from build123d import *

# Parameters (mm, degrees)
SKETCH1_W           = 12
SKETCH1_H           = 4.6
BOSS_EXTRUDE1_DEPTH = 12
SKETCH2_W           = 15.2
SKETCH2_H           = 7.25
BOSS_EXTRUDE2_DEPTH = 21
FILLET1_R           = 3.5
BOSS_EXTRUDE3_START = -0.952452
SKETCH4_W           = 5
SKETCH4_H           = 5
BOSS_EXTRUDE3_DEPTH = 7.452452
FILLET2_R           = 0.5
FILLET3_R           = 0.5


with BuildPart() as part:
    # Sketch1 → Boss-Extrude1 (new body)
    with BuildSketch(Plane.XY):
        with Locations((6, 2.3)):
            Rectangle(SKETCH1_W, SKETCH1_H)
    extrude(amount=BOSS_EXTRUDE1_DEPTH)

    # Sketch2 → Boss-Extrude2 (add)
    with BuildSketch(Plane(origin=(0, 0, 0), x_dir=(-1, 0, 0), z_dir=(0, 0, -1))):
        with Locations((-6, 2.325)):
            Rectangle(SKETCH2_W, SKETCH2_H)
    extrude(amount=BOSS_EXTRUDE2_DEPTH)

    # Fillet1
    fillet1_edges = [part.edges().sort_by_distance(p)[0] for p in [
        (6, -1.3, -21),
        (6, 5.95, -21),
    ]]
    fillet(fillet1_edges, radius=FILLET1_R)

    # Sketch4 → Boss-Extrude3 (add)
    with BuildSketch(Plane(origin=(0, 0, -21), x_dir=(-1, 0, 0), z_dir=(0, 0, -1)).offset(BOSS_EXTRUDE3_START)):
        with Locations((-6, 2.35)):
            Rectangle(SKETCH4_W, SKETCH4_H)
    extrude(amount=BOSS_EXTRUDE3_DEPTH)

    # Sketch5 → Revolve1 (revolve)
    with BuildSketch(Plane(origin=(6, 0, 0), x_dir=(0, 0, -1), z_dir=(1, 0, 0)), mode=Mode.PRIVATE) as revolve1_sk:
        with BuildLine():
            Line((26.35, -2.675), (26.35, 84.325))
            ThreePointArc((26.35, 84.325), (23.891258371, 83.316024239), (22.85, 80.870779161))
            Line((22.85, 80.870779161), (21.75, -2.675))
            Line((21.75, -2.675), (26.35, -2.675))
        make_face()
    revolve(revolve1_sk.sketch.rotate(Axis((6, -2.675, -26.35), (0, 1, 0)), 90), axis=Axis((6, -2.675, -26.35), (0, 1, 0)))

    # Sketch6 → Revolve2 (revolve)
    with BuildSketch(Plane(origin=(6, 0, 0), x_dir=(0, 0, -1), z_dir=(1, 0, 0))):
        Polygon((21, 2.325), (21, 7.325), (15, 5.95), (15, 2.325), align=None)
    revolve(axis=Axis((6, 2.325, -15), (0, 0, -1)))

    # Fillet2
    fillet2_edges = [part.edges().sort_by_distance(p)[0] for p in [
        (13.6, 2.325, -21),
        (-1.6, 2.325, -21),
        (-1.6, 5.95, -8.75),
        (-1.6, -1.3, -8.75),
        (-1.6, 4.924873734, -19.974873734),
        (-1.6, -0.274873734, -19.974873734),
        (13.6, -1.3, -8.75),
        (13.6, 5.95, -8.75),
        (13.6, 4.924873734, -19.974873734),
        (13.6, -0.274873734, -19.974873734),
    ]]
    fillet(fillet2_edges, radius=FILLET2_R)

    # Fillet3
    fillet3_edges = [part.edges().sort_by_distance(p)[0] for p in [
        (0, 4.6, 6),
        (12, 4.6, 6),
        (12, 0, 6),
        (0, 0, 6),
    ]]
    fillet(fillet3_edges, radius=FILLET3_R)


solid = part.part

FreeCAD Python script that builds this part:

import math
import FreeCAD as App
import Part
import Sketcher


def edges_at(feature, points):
    """Names of the edges that pass closest to the given points."""
    edges = feature.Shape.Edges
    near = lambda p: min(range(len(edges)), key=lambda i: edges[i].distToShape(Part.Vertex(*p))[0])
    return sorted({f"Edge{near(p) + 1}" for p in points})


def add_polygon(sketch, points):
    """Adds a closed chain of lines whose ends are joined by coincident constraints."""
    first, n = sketch.GeometryCount, len(points)
    for a, b in zip(points, points[1:] + points[:1]):
        sketch.addGeometry(Part.LineSegment(App.Vector(*a, 0), App.Vector(*b, 0)), False)
    for i in range(n):
        sketch.addConstraint(Sketcher.Constraint("Coincident", first + i, 2, first + (i + 1) % n, 1))

doc = App.newDocument("Part")
body = doc.addObject("PartDesign::Body", "Body")

# Sketch on XY plane
sketch1 = doc.addObject("Sketcher::SketchObject", "Sketch")
body.addObject(sketch1)
sketch1.AttachmentSupport = (doc.XY_Plane, [""])
sketch1.MapMode = "FlatFace"
add_polygon(sketch1, [(0, 4.6), (0, 0), (12, 0), (12, 4.6)])  # lines 0-3
sketch1.addConstraint(Sketcher.Constraint("Vertical", 0))
sketch1.addConstraint(Sketcher.Constraint("Horizontal", 1))
sketch1.addConstraint(Sketcher.Constraint("Vertical", 2))
sketch1.addConstraint(Sketcher.Constraint("Horizontal", 3))
sketch1.addConstraint(Sketcher.Constraint("Coincident", 0, 2, -1, 1))
sketch1.addConstraint(Sketcher.Constraint("DistanceX", 1, 1, 1, 2, 12.0))
sketch1.addConstraint(Sketcher.Constraint("DistanceY", 0, 2, 0, 1, 4.6))
pad1 = doc.addObject("PartDesign::Pad", "Pad")
body.addObject(pad1)
pad1.Profile = sketch1
pad1.Length = 12

# Sketch on XY plane
sketch2 = doc.addObject("Sketcher::SketchObject", "Sketch001")
body.addObject(sketch2)
sketch2.AttachmentSupport = (doc.XY_Plane, [""])
sketch2.MapMode = "FlatFace"
add_polygon(sketch2, [(14, 6), (14, -1), (-2, -1), (-2, 6)])  # lines 0-3
sketch2.addConstraint(Sketcher.Constraint("Vertical", 0))
sketch2.addConstraint(Sketcher.Constraint("Horizontal", 1))
sketch2.addConstraint(Sketcher.Constraint("Vertical", 2))
sketch2.addConstraint(Sketcher.Constraint("Horizontal", 3))
sketch2.addConstraint(Sketcher.Constraint("DistanceX", 1, 2, 1, 1, 15.2))
sketch2.addConstraint(Sketcher.Constraint("DistanceY", 0, 2, 0, 1, 7.25))
sketch2.addConstraint(Sketcher.Constraint("DistanceX", -1, 1, 0, 2, 13.6))
sketch2.addConstraint(Sketcher.Constraint("DistanceY", 0, 2, -1, 1, 1.3))
pad2 = doc.addObject("PartDesign::Pad", "Pad001")
body.addObject(pad2)
pad2.Profile = sketch2
pad2.Length = 21
pad2.Reversed = True
doc.recompute()

fillet = doc.addObject("PartDesign::Fillet", "Fillet")
body.addObject(fillet)
fillet.Base = (pad2, edges_at(pad2, [(6, -1.3, -21), (6, 5.95, -21)]))
fillet.Radius = 3.5

# Sketch on XY plane
sketch3 = doc.addObject("Sketcher::SketchObject", "Sketch002")
body.addObject(sketch3)
sketch3.AttachmentSupport = (doc.XY_Plane, [""])
sketch3.MapMode = "FlatFace"
sketch3.AttachmentOffset = App.Placement(App.Vector(0, 0, -20.047548), App.Rotation())
add_polygon(sketch3, [(8, 5), (8, 0), (4, 0), (4, 5)])  # lines 0-3
sketch3.addConstraint(Sketcher.Constraint("Vertical", 0))
sketch3.addConstraint(Sketcher.Constraint("Horizontal", 1))
sketch3.addConstraint(Sketcher.Constraint("Vertical", 2))
sketch3.addConstraint(Sketcher.Constraint("Horizontal", 3))
sketch3.addConstraint(Sketcher.Constraint("Equal", 3, 0))
sketch3.addConstraint(Sketcher.Constraint("DistanceX", 1, 2, 1, 1, 5.0))
sketch3.addConstraint(Sketcher.Constraint("DistanceX", -1, 1, 0, 2, 8.5))
sketch3.addConstraint(Sketcher.Constraint("DistanceY", 0, 2, -1, 1, 0.15))
pad3 = doc.addObject("PartDesign::Pad", "Pad002")
body.addObject(pad3)
pad3.Profile = sketch3
pad3.Length = 7.452452
pad3.Reversed = True

# Sketch on YZ plane
sketch4 = doc.addObject("Sketcher::SketchObject", "Sketch003")
body.addObject(sketch4)
sketch4.AttachmentSupport = (doc.YZ_Plane, [""])
sketch4.MapMode = "FlatFace"
sketch4.AttachmentOffset = App.Placement(App.Vector(0, 0, 6), App.Rotation())
sketch4.addGeometry(Part.LineSegment(App.Vector(-2.7, -26.4, 0), App.Vector(84.3, -26.4, 0)), False)
sketch4.addGeometry(Part.ArcOfCircle(Part.Circle(App.Vector(80.8, -26.4, 0), App.Vector(0, 0, 1), 3.5), math.radians(0), math.radians(89)), False)
sketch4.addGeometry(Part.LineSegment(App.Vector(80.9, -22.9, 0), App.Vector(-2.7, -21.8, 0)), False)
sketch4.addGeometry(Part.LineSegment(App.Vector(-2.7, -21.8, 0), App.Vector(-2.7, -26.4, 0)), False)
sketch4.addGeometry(Part.LineSegment(App.Vector(-2.7, -26.4, 0), App.Vector(84.3, -26.4, 0)), True)  # axis
sketch4.addConstraint(Sketcher.Constraint("Coincident", 0, 2, 1, 1))
sketch4.addConstraint(Sketcher.Constraint("Tangent", 1, 2, 2, 1))
sketch4.addConstraint(Sketcher.Constraint("Coincident", 2, 2, 3, 1))
sketch4.addConstraint(Sketcher.Constraint("Coincident", 3, 2, 0, 1))
sketch4.addConstraint(Sketcher.Constraint("Horizontal", 0))
sketch4.addConstraint(Sketcher.Constraint("Vertical", 3))
sketch4.addConstraint(Sketcher.Constraint("Horizontal", 4))
sketch4.addConstraint(Sketcher.Constraint("Coincident", 4, 1, 3, 2))
sketch4.addConstraint(Sketcher.Constraint("Horizontal", 1, 3, 0, 2))
sketch4.addConstraint(Sketcher.Constraint("Equal", 0, 4))
sketch4.addConstraint(Sketcher.Constraint("DistanceX", 0, 1, 0, 2, 87.0))
sketch4.addConstraint(Sketcher.Constraint("DistanceY", 3, 2, 3, 1, 4.6))
sketch4.addConstraint(Sketcher.Constraint("DistanceY", 1, 3, 1, 2, 3.5))
sketch4.addConstraint(Sketcher.Constraint("DistanceY", 1, 3, -1, 1, 26.35))
sketch4.addConstraint(Sketcher.Constraint("DistanceX", -1, 1, 0, 2, 84.325))
revolution = doc.addObject("PartDesign::Revolution", "Revolution")
body.addObject(revolution)
revolution.Profile = sketch4
revolution.ReferenceAxis = (sketch4, ["Axis0"])
revolution.Angle = 360

# Sketch on YZ plane
sketch5 = doc.addObject("Sketcher::SketchObject", "Sketch004")
body.addObject(sketch5)
sketch5.AttachmentSupport = (doc.YZ_Plane, [""])
sketch5.MapMode = "FlatFace"
sketch5.AttachmentOffset = App.Placement(App.Vector(0, 0, 6), App.Rotation())
add_polygon(sketch5, [(2.3, -21), (7.3, -21), (6, -15), (2.3, -15)])  # lines 0-3
sketch5.addGeometry(Part.LineSegment(App.Vector(2.3, -15, 0), App.Vector(2.3, -21, 0)), True)  # axis
sketch5.addConstraint(Sketcher.Constraint("Horizontal", 0))
sketch5.addConstraint(Sketcher.Constraint("Horizontal", 2))
sketch5.addConstraint(Sketcher.Constraint("Vertical", 3))
sketch5.addConstraint(Sketcher.Constraint("Vertical", 4))
sketch5.addConstraint(Sketcher.Constraint("Coincident", 4, 1, 2, 2))
sketch5.addConstraint(Sketcher.Constraint("Horizontal", 0, 2, 4, 2))
sketch5.addConstraint(Sketcher.Constraint("DistanceX", 0, 1, 0, 2, 5.0))
sketch5.addConstraint(Sketcher.Constraint("DistanceY", 3, 2, 3, 1, 6.0))
sketch5.addConstraint(Sketcher.Constraint("DistanceY", 0, 2, -1, 1, 21.0))
sketch5.addConstraint(Sketcher.Constraint("DistanceX", 2, 2, 2, 1, 3.625))
sketch5.addConstraint(Sketcher.Constraint("DistanceX", -1, 1, 1, 2, 5.95))
revolution2 = doc.addObject("PartDesign::Revolution", "Revolution001")
body.addObject(revolution2)
revolution2.Profile = sketch5
revolution2.ReferenceAxis = (sketch5, ["Axis0"])
revolution2.Angle = 360
doc.recompute()

fillet2 = doc.addObject("PartDesign::Fillet", "Fillet001")
body.addObject(fillet2)
fillet2.Base = (revolution2, edges_at(revolution2, [
    (13.6, 2.325, -21),
    (-1.6, 2.325, -21),
    (-1.6, 5.95, -8.75),
    (-1.6, -1.3, -8.75),
    (-1.6, 4.925, -19.975),
    (-1.6, -0.275, -19.975),
    (13.6, -1.3, -8.75),
    (13.6, 5.95, -8.75),
    (13.6, 4.925, -19.975),
    (13.6, -0.275, -19.975),
]))
fillet2.Radius = 0.5
doc.recompute()

fillet3 = doc.addObject("PartDesign::Fillet", "Fillet002")
body.addObject(fillet3)
fillet3.Base = (fillet2, edges_at(fillet2, [
    (0, 4.6, 6),
    (12, 4.6, 6),
    (12, 0, 6),
    (0, 0, 6),
]))
fillet3.Radius = 0.5

doc.recompute()
